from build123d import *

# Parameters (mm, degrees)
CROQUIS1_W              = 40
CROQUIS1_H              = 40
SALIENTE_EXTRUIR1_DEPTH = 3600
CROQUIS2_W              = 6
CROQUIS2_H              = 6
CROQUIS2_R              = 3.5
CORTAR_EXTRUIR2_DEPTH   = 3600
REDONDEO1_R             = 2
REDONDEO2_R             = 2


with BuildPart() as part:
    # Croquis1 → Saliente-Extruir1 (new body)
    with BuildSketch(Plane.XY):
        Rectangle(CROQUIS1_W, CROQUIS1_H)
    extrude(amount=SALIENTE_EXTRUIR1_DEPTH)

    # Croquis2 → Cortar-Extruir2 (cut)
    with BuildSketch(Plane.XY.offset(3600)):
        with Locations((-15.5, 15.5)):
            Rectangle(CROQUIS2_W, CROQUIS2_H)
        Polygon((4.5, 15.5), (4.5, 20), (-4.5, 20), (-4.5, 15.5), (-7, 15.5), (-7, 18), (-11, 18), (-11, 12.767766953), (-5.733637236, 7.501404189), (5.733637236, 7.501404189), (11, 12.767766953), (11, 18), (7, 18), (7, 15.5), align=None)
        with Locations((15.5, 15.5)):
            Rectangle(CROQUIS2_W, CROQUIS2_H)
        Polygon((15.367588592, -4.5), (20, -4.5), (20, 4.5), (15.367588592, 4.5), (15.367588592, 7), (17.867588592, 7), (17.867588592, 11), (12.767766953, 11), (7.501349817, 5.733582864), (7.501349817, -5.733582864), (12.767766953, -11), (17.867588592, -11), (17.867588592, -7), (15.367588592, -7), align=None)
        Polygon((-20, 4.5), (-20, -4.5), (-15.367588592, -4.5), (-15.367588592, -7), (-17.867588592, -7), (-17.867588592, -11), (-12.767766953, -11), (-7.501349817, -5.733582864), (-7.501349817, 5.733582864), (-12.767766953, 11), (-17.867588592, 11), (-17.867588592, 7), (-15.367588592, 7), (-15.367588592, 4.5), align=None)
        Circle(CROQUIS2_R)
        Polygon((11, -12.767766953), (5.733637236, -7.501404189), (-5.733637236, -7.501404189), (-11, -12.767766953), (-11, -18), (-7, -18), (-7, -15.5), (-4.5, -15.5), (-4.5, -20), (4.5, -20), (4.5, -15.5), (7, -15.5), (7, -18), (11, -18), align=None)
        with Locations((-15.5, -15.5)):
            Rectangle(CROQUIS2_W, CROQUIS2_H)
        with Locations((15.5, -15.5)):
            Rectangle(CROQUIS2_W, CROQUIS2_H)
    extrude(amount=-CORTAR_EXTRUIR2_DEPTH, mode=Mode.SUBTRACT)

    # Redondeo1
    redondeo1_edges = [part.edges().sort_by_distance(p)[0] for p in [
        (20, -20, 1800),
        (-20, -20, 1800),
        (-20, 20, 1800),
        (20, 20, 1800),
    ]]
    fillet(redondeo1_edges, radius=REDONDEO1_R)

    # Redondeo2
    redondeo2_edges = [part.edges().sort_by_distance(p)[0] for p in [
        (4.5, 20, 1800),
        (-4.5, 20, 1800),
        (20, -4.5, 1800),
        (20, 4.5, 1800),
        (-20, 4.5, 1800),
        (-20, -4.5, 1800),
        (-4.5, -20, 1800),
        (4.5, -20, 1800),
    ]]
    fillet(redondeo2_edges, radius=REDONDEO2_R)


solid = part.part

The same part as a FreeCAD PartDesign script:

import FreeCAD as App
import Part
import Sketcher

V = App.Vector
Q = App.Units.Quantity


def edges_at(feature, points):
    """Names of the edges that pass closest to the given points."""
    edges = feature.Shape.Edges
    near = lambda p: min(range(len(edges)), key=lambda i: edges[i].distToShape(Part.Vertex(*p))[0])
    return sorted({f"Edge{near(p) + 1}" for p in points})


def add_polygon(sketch, points):
    """Adds a closed chain of lines whose ends are joined by coincident constraints."""
    first, n = sketch.GeometryCount, len(points)
    for a, b in zip(points, points[1:] + points[:1]):
        sketch.addGeometry(Part.LineSegment(App.Vector(*a, 0), App.Vector(*b, 0)), False)
    for i in range(n):
        sketch.addConstraint(Sketcher.Constraint("Coincident", first + i, 2, first + (i + 1) % n, 1))

doc = App.newDocument("Part")
body = doc.addObject("PartDesign::Body", "Body")

# Sketch on XY plane
sketch1 = body.newObject("Sketcher::SketchObject", "Sketch")
sketch1.AttachmentSupport = (doc.getObject("XY_Plane"), [""])
sketch1.MapMode = "FlatFace"
add_polygon(sketch1, [(-20, 20), (-20, -20), (20, -20), (20, 20)])  # lines 0-3
sketch1.addConstraint(Sketcher.Constraint("Vertical", 0))
sketch1.addConstraint(Sketcher.Constraint("Horizontal", 1))
sketch1.addConstraint(Sketcher.Constraint("Vertical", 2))
sketch1.addConstraint(Sketcher.Constraint("Horizontal", 3))
sketch1.addConstraint(Sketcher.Constraint("Symmetric", 0, 2, 2, 2, -1, 1))
sketch1.addConstraint(Sketcher.Constraint("Equal", 3, 0))
sketch1.addConstraint(Sketcher.Constraint("DistanceX", 1, 1, 1, 2, Q("40 mm")))
pad1 = body.newObject("PartDesign::Pad", "Pad")
pad1.Profile = sketch1
pad1.Length = 3600

# Sketch on XY plane
sketch2 = body.newObject("Sketcher::SketchObject", "Sketch001")
sketch2.AttachmentSupport = (doc.getObject("XY_Plane"), [""])
sketch2.MapMode = "FlatFace"
sketch2.AttachmentOffset = App.Placement(V(0, 0, 3600), App.Rotation())
add_polygon(sketch2, [(-18.5, 18.5), (-18.5, 12.5), (-12.5, 12.5), (-12.5, 18.5)])  # lines 0-3
add_polygon(sketch2, [(4.5, 15.5), (4.5, 20), (-4.5, 20), (-4.5, 15.5), (-7, 15.5), (-7, 18), (-11, 18), (-11, 12.8), (-5.7, 7.5), (5.7, 7.5), (11, 12.8), (11, 18), (7, 18), (7, 15.5)])  # lines 4-17
add_polygon(sketch2, [(12.5, 18.5), (12.5, 12.5), (18.5, 12.5), (18.5, 18.5)])  # lines 18-21
add_polygon(sketch2, [(15.4, -4.5), (20, -4.5), (20, 4.5), (15.4, 4.5), (15.4, 7), (17.9, 7), (17.9, 11), (12.8, 11), (7.5, 5.7), (7.5, -5.7), (12.8, -11), (17.9, -11), (17.9, -7), (15.4, -7)])  # lines 22-35
add_polygon(sketch2, [(-20, 4.5), (-20, -4.5), (-15.4, -4.5), (-15.4, -7), (-17.9, -7), (-17.9, -11), (-12.8, -11), (-7.5, -5.7), (-7.5, 5.7), (-12.8, 11), (-17.9, 11), (-17.9, 7), (-15.4, 7), (-15.4, 4.5)])  # lines 36-49
sketch2.addGeometry(Part.Circle(V(0, 0, 0), V(0, 0, 1), 3.5), False)  # 50
add_polygon(sketch2, [(11, -12.8), (5.7, -7.5), (-5.7, -7.5), (-11, -12.8), (-11, -18), (-7, -18), (-7, -15.5), (-4.5, -15.5), (-4.5, -20), (4.5, -20), (4.5, -15.5), (7, -15.5), (7, -18), (11, -18)])  # lines 51-64
add_polygon(sketch2, [(-18.5, -12.5), (-18.5, -18.5), (-12.5, -18.5), (-12.5, -12.5)])  # lines 65-68
add_polygon(sketch2, [(12.5, -12.5), (12.5, -18.5), (18.5, -18.5), (18.5, -12.5)])  # lines 69-72
sketch2.addConstraint(Sketcher.Constraint("Vertical", 0))
sketch2.addConstraint(Sketcher.Constraint("Horizontal", 1))
sketch2.addConstraint(Sketcher.Constraint("Vertical", 2))
sketch2.addConstraint(Sketcher.Constraint("Horizontal", 3))
sketch2.addConstraint(Sketcher.Constraint("Vertical", 4))
sketch2.addConstraint(Sketcher.Constraint("Horizontal", 5))
sketch2.addConstraint(Sketcher.Constraint("Vertical", 6))
sketch2.addConstraint(Sketcher.Constraint("Horizontal", 7))
sketch2.addConstraint(Sketcher.Constraint("Vertical", 8))
sketch2.addConstraint(Sketcher.Constraint("Horizontal", 9))
sketch2.addConstraint(Sketcher.Constraint("Vertical", 10))
sketch2.addConstraint(Sketcher.Constraint("Horizontal", 12))
sketch2.addConstraint(Sketcher.Constraint("Vertical", 14))
sketch2.addConstraint(Sketcher.Constraint("Horizontal", 15))
sketch2.addConstraint(Sketcher.Constraint("Vertical", 16))
sketch2.addConstraint(Sketcher.Constraint("Horizontal", 17))
sketch2.addConstraint(Sketcher.Constraint("Vertical", 18))
sketch2.addConstraint(Sketcher.Constraint("Horizontal", 19))
sketch2.addConstraint(Sketcher.Constraint("Vertical", 20))
sketch2.addConstraint(Sketcher.Constraint("Horizontal", 21))
sketch2.addConstraint(Sketcher.Constraint("Horizontal", 22))
sketch2.addConstraint(Sketcher.Constraint("Vertical", 23))
sketch2.addConstraint(Sketcher.Constraint("Horizontal", 24))
sketch2.addConstraint(Sketcher.Constraint("Vertical", 25))
sketch2.addConstraint(Sketcher.Constraint("Horizontal", 26))
sketch2.addConstraint(Sketcher.Constraint("Vertical", 27))
sketch2.addConstraint(Sketcher.Constraint("Horizontal", 28))
sketch2.addConstraint(Sketcher.Constraint("Vertical", 30))
sketch2.addConstraint(Sketcher.Constraint("Horizontal", 32))
sketch2.addConstraint(Sketcher.Constraint("Vertical", 33))
sketch2.addConstraint(Sketcher.Constraint("Horizontal", 34))
sketch2.addConstraint(Sketcher.Constraint("Vertical", 35))
sketch2.addConstraint(Sketcher.Constraint("Vertical", 36))
sketch2.addConstraint(Sketcher.Constraint("Horizontal", 37))
sketch2.addConstraint(Sketcher.Constraint("Vertical", 38))
sketch2.addConstraint(Sketcher.Constraint("Horizontal", 39))
sketch2.addConstraint(Sketcher.Constraint("Vertical", 40))
sketch2.addConstraint(Sketcher.Constraint("Horizontal", 41))
sketch2.addConstraint(Sketcher.Constraint("Vertical", 43))
sketch2.addConstraint(Sketcher.Constraint("Horizontal", 45))
sketch2.addConstraint(Sketcher.Constraint("Vertical", 46))
sketch2.addConstraint(Sketcher.Constraint("Horizontal", 47))
sketch2.addConstraint(Sketcher.Constraint("Vertical", 48))
sketch2.addConstraint(Sketcher.Constraint("Horizontal", 49))
sketch2.addConstraint(Sketcher.Constraint("Horizontal", 52))
sketch2.addConstraint(Sketcher.Constraint("Vertical", 54))
sketch2.addConstraint(Sketcher.Constraint("Horizontal", 55))
sketch2.addConstraint(Sketcher.Constraint("Vertical", 56))
sketch2.addConstraint(Sketcher.Constraint("Horizontal", 57))
sketch2.addConstraint(Sketcher.Constraint("Vertical", 58))
sketch2.addConstraint(Sketcher.Constraint("Horizontal", 59))
sketch2.addConstraint(Sketcher.Constraint("Vertical", 60))
sketch2.addConstraint(Sketcher.Constraint("Horizontal", 61))
sketch2.addConstraint(Sketcher.Constraint("Vertical", 62))
sketch2.addConstraint(Sketcher.Constraint("Horizontal", 63))
sketch2.addConstraint(Sketcher.Constraint("Vertical", 64))
sketch2.addConstraint(Sketcher.Constraint("Vertical", 65))
sketch2.addConstraint(Sketcher.Constraint("Horizontal", 66))
sketch2.addConstraint(Sketcher.Constraint("Vertical", 67))
sketch2.addConstraint(Sketcher.Constraint("Horizontal", 68))
sketch2.addConstraint(Sketcher.Constraint("Vertical", 69))
sketch2.addConstraint(Sketcher.Constraint("Horizontal", 70))
sketch2.addConstraint(Sketcher.Constraint("Vertical", 71))
sketch2.addConstraint(Sketcher.Constraint("Horizontal", 72))
sketch2.addConstraint(Sketcher.Constraint("Coincident", 50, 3, -1, 1))
sketch2.addConstraint(Sketcher.Constraint("Symmetric", 23, 2, 36, 2, -1, 1))
sketch2.addConstraint(Sketcher.Constraint("Symmetric", 25, 2, 38, 2, -1, 1))
sketch2.addConstraint(Sketcher.Constraint("Symmetric", 27, 2, 40, 2, -1, 1))
sketch2.addConstraint(Sketcher.Constraint("Symmetric", 29, 2, 42, 2, -1, 1))
sketch2.addConstraint(Sketcher.Constraint("Symmetric", 31, 2, 44, 2, -1, 1))
sketch2.addConstraint(Sketcher.Constraint("Symmetric", 33, 2, 46, 2, -1, 1))
sketch2.addConstraint(Sketcher.Constraint("Symmetric", 35, 2, 48, 2, -1, 1))
sketch2.addConstraint(Sketcher.Constraint("Symmetric", 11, 2, 51, 2, -1, 1))
sketch2.addConstraint(Sketcher.Constraint("Symmetric", 13, 2, 53, 2, -1, 1))
sketch2.addConstraint(Sketcher.Constraint("Symmetric", 15, 2, 55, 2, -1, 1))
sketch2.addConstraint(Sketcher.Constraint("Symmetric", 17, 2, 57, 2, -1, 1))
sketch2.addConstraint(Sketcher.Constraint("Symmetric", 5, 2, 59, 2, -1, 1))
sketch2.addConstraint(Sketcher.Constraint("Symmetric", 7, 2, 61, 2, -1, 1))
sketch2.addConstraint(Sketcher.Constraint("Symmetric", 9, 2, 63, 2, -1, 1))
sketch2.addConstraint(Sketcher.Constraint("Symmetric", 20, 2, 65, 2, -1, 1))
sketch2.addConstraint(Sketcher.Constraint("Symmetric", 18, 2, 67, 2, -1, 1))
sketch2.addConstraint(Sketcher.Constraint("Symmetric", 2, 2, 69, 2, -1, 1))
sketch2.addConstraint(Sketcher.Constraint("Symmetric", 0, 2, 71, 2, -1, 1))
sketch2.addConstraint(Sketcher.Constraint("Symmetric", 10, 2, 13, 2, -2))
sketch2.addConstraint(Sketcher.Constraint("Symmetric", 8, 2, 15, 2, -2))
sketch2.addConstraint(Sketcher.Constraint("Symmetric", 6, 2, 17, 2, -2))
sketch2.addConstraint(Sketcher.Constraint("Symmetric", 1, 2, 18, 2, -2))
sketch2.addConstraint(Sketcher.Constraint("Symmetric", 3, 2, 20, 2, -2))
sketch2.addConstraint(Sketcher.Constraint("Symmetric", 35, 2, 37, 2, -2))
sketch2.addConstraint(Sketcher.Constraint("Symmetric", 33, 2, 39, 2, -2))
sketch2.addConstraint(Sketcher.Constraint("Symmetric", 31, 2, 41, 2, -2))
sketch2.addConstraint(Sketcher.Constraint("Perpendicular", 11, 13))
sketch2.addConstraint(Sketcher.Constraint("Parallel", 13, 29))
sketch2.addConstraint(Sketcher.Constraint("Perpendicular", 29, 31))
sketch2.addConstraint(Sketcher.Constraint("Perpendicular", 31, 42))
sketch2.addConstraint(Sketcher.Constraint("Perpendicular", 42, 44))
sketch2.addConstraint(Sketcher.Constraint("Parallel", 44, 51))
sketch2.addConstraint(Sketcher.Constraint("Perpendicular", 51, 53))
sketch2.addConstraint(Sketcher.Constraint("Horizontal", 30, 2, 42, 2))
sketch2.addConstraint(Sketcher.Constraint("Equal", 17, 26))
sketch2.addConstraint(Sketcher.Constraint("Equal", 72, 0))
sketch2.addConstraint(Sketcher.Constraint("Equal", 61, 8))
sketch2.addConstraint(Sketcher.Constraint("Equal", 59, 23))
sketch2.addConstraint(Sketcher.Constraint("Equal", 16, 25))
sketch2.addConstraint(Sketcher.Constraint("Equal", 63, 27))
sketch2.addConstraint(Sketcher.Constraint("Diameter", 50, Q("7 mm")))
sketch2.addConstraint(Sketcher.Constraint("DistanceX", 1, 1, 1, 2, Q("6 mm")))
sketch2.addConstraint(Sketcher.Constraint("DistanceX", 5, 2, 5, 1, Q("9 mm")))
sketch2.addConstraint(Sketcher.Constraint("DistanceX", 9, 2, 9, 1, Q("4 mm")))
sketch2.addConstraint(Sketcher.Constraint("DistanceX", 7, 2, 7, 1, Q("2.5 mm")))
sketch2.addConstraint(Sketcher.Constraint("DistanceY", 4, 1, 4, 2, Q("4.5 mm")))
sketch2.addConstraint(Sketcher.Constraint("DistanceY", -1, 1, 4, 2, Q("20 mm")))
sketch2.addConstraint(Sketcher.Constraint("DistanceX", -1, 1, 22, 2, Q("20 mm")))
sketch2.addConstraint(Sketcher.Constraint("DistanceX", 0, 2, -1, 1, Q("18.5 mm")))
sketch2.addConstraint(Sketcher.Constraint("DistanceY", -1, 1, 0, 2, Q("12.5 mm")))
sketch2.addConstraint(Sketcher.Constraint("DistanceX", 22, 1, 22, 2, Q("4.632411 mm")))
sketch2.addConstraint(Sketcher.Constraint("DistanceX", 28, 2, 28, 1, Q("5.099822 mm")))
sketch2.addConstraint(Sketcher.Constraint("Distance", 11, Q("7.447762 mm")))
sketch2.addConstraint(Sketcher.Constraint("Distance", 29, Q("7.447839 mm")))
sketch2.addConstraint(Sketcher.Constraint("DistanceY", 10, 2, 10, 1, Q("5.232233 mm")))
pocket1 = body.newObject("PartDesign::Pocket", "Pocket")
pocket1.Profile = sketch2
pocket1.Length = 3600
doc.recompute()

fillet = body.newObject("PartDesign::Fillet", "Fillet")
fillet.Base = (pocket1, edges_at(pocket1, [
    (20, -20, 1800),
    (-20, -20, 1800),
    (-20, 20, 1800),
    (20, 20, 1800),
]))
fillet.Radius = 2
doc.recompute()

fillet2 = body.newObject("PartDesign::Fillet", "Fillet001")
fillet2.Base = (fillet, edges_at(fillet, [
    (4.5, 20, 1800),
    (-4.5, 20, 1800),
    (20, -4.5, 1800),
    (20, 4.5, 1800),
    (-20, 4.5, 1800),
    (-20, -4.5, 1800),
    (-4.5, -20, 1800),
    (4.5, -20, 1800),
]))
fillet2.Radius = 2

doc.recompute()
